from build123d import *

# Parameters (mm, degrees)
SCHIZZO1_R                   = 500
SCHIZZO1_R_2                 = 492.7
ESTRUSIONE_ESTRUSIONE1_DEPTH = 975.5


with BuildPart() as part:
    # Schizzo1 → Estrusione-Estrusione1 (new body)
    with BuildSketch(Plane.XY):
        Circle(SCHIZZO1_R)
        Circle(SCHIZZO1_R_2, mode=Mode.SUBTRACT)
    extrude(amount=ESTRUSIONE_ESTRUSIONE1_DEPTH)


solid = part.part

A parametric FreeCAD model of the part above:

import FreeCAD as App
import Part
import Sketcher
from FreeCAD import Vector
Q = App.Units.Quantity

doc = App.newDocument("Part")
body = doc.addObject("PartDesign::Body", "Body")

# Sketch on XY plane
sketch1 = body.newObject("Sketcher::SketchObject", "Sketch")
sketch1.AttachmentSupport = (doc.getObject("XY_Plane"), [""])
sketch1.MapMode = "FlatFace"
sketch1.addGeometry([
    Part.Circle(Vector(0, 0, 0), Vector(0, 0, 1), 500),
    Part.Circle(Vector(0, 0, 0), Vector(0, 0, 1), 493),
], False)
sketch1.addConstraint([
    Sketcher.Constraint("Coincident", 0, 3, -1, 1),
    Sketcher.Constraint("Coincident", 1, 3, -1, 1),
    Sketcher.Constraint("Diameter", 0, Q("1000 mm")),
    Sketcher.Constraint("Diameter", 1, Q("985.4 mm")),
])
pad1 = body.newObject("PartDesign::Pad", "Pad")
pad1.Profile = sketch1
pad1.Length = 975.5

doc.recompute()
